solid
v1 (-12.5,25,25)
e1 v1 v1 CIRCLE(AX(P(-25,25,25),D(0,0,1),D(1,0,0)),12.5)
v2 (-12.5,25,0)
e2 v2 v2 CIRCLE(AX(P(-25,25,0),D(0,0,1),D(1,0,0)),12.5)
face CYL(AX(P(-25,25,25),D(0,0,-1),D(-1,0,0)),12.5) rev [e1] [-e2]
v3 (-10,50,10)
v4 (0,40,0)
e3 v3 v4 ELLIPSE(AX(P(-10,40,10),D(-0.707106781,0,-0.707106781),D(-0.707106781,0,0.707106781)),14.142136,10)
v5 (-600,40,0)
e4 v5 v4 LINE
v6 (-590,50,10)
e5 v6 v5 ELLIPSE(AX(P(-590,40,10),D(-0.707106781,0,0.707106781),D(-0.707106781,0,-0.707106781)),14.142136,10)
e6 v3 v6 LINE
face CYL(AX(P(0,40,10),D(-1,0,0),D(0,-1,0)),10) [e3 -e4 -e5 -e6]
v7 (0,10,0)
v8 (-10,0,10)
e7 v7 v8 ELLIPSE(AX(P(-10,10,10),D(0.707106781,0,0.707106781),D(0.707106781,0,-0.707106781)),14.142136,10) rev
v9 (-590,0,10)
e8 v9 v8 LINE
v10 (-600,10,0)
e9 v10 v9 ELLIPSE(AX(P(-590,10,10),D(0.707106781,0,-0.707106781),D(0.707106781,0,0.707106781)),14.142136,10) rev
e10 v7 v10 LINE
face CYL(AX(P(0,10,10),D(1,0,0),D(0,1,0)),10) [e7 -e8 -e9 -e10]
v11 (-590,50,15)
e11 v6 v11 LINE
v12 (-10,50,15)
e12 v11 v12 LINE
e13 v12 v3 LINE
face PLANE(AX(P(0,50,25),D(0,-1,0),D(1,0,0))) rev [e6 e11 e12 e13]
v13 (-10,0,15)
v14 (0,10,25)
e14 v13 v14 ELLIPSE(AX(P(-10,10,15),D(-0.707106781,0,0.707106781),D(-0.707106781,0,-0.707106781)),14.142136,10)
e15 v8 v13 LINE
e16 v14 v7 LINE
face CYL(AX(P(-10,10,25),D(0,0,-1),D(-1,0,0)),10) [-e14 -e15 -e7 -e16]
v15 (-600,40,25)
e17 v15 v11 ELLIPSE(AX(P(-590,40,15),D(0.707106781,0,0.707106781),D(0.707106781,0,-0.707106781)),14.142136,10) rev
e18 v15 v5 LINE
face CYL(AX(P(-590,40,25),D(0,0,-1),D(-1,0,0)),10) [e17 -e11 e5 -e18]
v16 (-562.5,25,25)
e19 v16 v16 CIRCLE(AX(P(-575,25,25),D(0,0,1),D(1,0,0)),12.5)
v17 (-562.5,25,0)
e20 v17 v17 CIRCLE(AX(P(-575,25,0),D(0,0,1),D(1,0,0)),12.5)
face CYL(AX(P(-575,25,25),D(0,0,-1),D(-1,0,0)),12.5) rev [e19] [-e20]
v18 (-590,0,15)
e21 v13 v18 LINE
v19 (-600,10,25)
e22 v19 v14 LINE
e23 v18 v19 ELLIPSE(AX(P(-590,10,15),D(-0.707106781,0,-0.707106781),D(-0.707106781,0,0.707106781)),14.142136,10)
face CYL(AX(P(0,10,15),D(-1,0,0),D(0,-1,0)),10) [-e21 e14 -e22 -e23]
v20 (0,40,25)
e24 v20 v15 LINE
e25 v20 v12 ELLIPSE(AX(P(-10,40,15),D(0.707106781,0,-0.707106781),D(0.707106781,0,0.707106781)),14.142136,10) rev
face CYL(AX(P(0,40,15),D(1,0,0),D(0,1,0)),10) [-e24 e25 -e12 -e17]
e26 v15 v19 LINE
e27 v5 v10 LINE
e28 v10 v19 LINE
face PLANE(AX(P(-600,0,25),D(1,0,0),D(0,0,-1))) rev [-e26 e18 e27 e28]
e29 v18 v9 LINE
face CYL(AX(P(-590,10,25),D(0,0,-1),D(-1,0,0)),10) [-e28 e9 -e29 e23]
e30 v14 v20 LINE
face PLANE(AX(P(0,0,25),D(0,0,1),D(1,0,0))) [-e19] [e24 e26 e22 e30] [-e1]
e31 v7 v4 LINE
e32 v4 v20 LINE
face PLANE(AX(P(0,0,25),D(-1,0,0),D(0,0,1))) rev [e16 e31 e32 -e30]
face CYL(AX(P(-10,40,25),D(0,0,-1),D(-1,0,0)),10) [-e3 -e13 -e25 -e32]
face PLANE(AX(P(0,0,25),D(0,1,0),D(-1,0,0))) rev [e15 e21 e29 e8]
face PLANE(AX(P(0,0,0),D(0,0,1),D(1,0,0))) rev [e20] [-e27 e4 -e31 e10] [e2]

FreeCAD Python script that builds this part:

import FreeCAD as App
import Part
import Sketcher

V = App.Vector
Q = App.Units.Quantity


def edges_at(feature, points):
    """Names of the edges that pass closest to the given points."""
    edges = feature.Shape.Edges
    near = lambda p: min(range(len(edges)), key=lambda i: edges[i].distToShape(Part.Vertex(*p))[0])
    return sorted({f"Edge{near(p) + 1}" for p in points})

doc = App.newDocument("Part")
body = doc.addObject("PartDesign::Body", "Body")

sketch1 = body.newObject("Sketcher::SketchObject", "Sketch")
sketch1.AttachmentSupport = (doc.getObject("XY_Plane"), [""])
sketch1.MapMode = "FlatFace"
sketch1.addGeometry([
    Part.LineSegment(V(-600, 50, 0), V(-600, 0, 0)),
    Part.LineSegment(V(-600, 0, 0), V(0, 0, 0)),
    Part.LineSegment(V(0, 0, 0), V(0, 50, 0)),
    Part.LineSegment(V(0, 50, 0), V(-600, 50, 0)),
    Part.Circle(V(-575, 25, 0), V(0, 0, 1), 12),
    Part.Circle(V(-25, 25, 0), V(0, 0, 1), 12),
], False)
sketch1.addConstraint([
    Sketcher.Constraint("Coincident", 0, 2, 1, 1),
    Sketcher.Constraint("Coincident", 1, 2, 2, 1),
    Sketcher.Constraint("Coincident", 2, 2, 3, 1),
    Sketcher.Constraint("Coincident", 3, 2, 0, 1),
    Sketcher.Constraint("Vertical", 0),
    Sketcher.Constraint("Horizontal", 1),
    Sketcher.Constraint("Vertical", 2),
    Sketcher.Constraint("Horizontal", 3),
    Sketcher.Constraint("Coincident", 1, 2, -1, 1),
    Sketcher.Constraint("Equal", 4, 5),
    Sketcher.Constraint("Horizontal", 4, 3, 5, 3),
    Sketcher.Constraint("Diameter", 4, Q("25 mm")),
    Sketcher.Constraint("DistanceX", 1, 1, 1, 2, Q("600 mm")),
    Sketcher.Constraint("DistanceY", 0, 2, 0, 1, Q("50 mm")),
    Sketcher.Constraint("DistanceX", 4, 3, -1, 1, Q("575 mm")),
    Sketcher.Constraint("DistanceY", -1, 1, 4, 3, Q("25 mm")),
    Sketcher.Constraint("DistanceX", 5, 3, -1, 1, Q("25 mm")),
])
pad1 = body.newObject("PartDesign::Pad", "Pad")
pad1.Profile = sketch1
pad1.Length = 25
doc.recompute()

fillet = body.newObject("PartDesign::Fillet", "Fillet")
fillet.Base = (pad1, edges_at(pad1, [
    (-300, 0, 25),
    (-300, 0, 0),
    (-300, 50, 0),
    (-300, 50, 25),
    (0, 0, 12.5),
    (-600, 0, 12.5),
    (-600, 50, 12.5),
    (0, 50, 12.5),
]))
fillet.Radius = 10

doc.recompute()
